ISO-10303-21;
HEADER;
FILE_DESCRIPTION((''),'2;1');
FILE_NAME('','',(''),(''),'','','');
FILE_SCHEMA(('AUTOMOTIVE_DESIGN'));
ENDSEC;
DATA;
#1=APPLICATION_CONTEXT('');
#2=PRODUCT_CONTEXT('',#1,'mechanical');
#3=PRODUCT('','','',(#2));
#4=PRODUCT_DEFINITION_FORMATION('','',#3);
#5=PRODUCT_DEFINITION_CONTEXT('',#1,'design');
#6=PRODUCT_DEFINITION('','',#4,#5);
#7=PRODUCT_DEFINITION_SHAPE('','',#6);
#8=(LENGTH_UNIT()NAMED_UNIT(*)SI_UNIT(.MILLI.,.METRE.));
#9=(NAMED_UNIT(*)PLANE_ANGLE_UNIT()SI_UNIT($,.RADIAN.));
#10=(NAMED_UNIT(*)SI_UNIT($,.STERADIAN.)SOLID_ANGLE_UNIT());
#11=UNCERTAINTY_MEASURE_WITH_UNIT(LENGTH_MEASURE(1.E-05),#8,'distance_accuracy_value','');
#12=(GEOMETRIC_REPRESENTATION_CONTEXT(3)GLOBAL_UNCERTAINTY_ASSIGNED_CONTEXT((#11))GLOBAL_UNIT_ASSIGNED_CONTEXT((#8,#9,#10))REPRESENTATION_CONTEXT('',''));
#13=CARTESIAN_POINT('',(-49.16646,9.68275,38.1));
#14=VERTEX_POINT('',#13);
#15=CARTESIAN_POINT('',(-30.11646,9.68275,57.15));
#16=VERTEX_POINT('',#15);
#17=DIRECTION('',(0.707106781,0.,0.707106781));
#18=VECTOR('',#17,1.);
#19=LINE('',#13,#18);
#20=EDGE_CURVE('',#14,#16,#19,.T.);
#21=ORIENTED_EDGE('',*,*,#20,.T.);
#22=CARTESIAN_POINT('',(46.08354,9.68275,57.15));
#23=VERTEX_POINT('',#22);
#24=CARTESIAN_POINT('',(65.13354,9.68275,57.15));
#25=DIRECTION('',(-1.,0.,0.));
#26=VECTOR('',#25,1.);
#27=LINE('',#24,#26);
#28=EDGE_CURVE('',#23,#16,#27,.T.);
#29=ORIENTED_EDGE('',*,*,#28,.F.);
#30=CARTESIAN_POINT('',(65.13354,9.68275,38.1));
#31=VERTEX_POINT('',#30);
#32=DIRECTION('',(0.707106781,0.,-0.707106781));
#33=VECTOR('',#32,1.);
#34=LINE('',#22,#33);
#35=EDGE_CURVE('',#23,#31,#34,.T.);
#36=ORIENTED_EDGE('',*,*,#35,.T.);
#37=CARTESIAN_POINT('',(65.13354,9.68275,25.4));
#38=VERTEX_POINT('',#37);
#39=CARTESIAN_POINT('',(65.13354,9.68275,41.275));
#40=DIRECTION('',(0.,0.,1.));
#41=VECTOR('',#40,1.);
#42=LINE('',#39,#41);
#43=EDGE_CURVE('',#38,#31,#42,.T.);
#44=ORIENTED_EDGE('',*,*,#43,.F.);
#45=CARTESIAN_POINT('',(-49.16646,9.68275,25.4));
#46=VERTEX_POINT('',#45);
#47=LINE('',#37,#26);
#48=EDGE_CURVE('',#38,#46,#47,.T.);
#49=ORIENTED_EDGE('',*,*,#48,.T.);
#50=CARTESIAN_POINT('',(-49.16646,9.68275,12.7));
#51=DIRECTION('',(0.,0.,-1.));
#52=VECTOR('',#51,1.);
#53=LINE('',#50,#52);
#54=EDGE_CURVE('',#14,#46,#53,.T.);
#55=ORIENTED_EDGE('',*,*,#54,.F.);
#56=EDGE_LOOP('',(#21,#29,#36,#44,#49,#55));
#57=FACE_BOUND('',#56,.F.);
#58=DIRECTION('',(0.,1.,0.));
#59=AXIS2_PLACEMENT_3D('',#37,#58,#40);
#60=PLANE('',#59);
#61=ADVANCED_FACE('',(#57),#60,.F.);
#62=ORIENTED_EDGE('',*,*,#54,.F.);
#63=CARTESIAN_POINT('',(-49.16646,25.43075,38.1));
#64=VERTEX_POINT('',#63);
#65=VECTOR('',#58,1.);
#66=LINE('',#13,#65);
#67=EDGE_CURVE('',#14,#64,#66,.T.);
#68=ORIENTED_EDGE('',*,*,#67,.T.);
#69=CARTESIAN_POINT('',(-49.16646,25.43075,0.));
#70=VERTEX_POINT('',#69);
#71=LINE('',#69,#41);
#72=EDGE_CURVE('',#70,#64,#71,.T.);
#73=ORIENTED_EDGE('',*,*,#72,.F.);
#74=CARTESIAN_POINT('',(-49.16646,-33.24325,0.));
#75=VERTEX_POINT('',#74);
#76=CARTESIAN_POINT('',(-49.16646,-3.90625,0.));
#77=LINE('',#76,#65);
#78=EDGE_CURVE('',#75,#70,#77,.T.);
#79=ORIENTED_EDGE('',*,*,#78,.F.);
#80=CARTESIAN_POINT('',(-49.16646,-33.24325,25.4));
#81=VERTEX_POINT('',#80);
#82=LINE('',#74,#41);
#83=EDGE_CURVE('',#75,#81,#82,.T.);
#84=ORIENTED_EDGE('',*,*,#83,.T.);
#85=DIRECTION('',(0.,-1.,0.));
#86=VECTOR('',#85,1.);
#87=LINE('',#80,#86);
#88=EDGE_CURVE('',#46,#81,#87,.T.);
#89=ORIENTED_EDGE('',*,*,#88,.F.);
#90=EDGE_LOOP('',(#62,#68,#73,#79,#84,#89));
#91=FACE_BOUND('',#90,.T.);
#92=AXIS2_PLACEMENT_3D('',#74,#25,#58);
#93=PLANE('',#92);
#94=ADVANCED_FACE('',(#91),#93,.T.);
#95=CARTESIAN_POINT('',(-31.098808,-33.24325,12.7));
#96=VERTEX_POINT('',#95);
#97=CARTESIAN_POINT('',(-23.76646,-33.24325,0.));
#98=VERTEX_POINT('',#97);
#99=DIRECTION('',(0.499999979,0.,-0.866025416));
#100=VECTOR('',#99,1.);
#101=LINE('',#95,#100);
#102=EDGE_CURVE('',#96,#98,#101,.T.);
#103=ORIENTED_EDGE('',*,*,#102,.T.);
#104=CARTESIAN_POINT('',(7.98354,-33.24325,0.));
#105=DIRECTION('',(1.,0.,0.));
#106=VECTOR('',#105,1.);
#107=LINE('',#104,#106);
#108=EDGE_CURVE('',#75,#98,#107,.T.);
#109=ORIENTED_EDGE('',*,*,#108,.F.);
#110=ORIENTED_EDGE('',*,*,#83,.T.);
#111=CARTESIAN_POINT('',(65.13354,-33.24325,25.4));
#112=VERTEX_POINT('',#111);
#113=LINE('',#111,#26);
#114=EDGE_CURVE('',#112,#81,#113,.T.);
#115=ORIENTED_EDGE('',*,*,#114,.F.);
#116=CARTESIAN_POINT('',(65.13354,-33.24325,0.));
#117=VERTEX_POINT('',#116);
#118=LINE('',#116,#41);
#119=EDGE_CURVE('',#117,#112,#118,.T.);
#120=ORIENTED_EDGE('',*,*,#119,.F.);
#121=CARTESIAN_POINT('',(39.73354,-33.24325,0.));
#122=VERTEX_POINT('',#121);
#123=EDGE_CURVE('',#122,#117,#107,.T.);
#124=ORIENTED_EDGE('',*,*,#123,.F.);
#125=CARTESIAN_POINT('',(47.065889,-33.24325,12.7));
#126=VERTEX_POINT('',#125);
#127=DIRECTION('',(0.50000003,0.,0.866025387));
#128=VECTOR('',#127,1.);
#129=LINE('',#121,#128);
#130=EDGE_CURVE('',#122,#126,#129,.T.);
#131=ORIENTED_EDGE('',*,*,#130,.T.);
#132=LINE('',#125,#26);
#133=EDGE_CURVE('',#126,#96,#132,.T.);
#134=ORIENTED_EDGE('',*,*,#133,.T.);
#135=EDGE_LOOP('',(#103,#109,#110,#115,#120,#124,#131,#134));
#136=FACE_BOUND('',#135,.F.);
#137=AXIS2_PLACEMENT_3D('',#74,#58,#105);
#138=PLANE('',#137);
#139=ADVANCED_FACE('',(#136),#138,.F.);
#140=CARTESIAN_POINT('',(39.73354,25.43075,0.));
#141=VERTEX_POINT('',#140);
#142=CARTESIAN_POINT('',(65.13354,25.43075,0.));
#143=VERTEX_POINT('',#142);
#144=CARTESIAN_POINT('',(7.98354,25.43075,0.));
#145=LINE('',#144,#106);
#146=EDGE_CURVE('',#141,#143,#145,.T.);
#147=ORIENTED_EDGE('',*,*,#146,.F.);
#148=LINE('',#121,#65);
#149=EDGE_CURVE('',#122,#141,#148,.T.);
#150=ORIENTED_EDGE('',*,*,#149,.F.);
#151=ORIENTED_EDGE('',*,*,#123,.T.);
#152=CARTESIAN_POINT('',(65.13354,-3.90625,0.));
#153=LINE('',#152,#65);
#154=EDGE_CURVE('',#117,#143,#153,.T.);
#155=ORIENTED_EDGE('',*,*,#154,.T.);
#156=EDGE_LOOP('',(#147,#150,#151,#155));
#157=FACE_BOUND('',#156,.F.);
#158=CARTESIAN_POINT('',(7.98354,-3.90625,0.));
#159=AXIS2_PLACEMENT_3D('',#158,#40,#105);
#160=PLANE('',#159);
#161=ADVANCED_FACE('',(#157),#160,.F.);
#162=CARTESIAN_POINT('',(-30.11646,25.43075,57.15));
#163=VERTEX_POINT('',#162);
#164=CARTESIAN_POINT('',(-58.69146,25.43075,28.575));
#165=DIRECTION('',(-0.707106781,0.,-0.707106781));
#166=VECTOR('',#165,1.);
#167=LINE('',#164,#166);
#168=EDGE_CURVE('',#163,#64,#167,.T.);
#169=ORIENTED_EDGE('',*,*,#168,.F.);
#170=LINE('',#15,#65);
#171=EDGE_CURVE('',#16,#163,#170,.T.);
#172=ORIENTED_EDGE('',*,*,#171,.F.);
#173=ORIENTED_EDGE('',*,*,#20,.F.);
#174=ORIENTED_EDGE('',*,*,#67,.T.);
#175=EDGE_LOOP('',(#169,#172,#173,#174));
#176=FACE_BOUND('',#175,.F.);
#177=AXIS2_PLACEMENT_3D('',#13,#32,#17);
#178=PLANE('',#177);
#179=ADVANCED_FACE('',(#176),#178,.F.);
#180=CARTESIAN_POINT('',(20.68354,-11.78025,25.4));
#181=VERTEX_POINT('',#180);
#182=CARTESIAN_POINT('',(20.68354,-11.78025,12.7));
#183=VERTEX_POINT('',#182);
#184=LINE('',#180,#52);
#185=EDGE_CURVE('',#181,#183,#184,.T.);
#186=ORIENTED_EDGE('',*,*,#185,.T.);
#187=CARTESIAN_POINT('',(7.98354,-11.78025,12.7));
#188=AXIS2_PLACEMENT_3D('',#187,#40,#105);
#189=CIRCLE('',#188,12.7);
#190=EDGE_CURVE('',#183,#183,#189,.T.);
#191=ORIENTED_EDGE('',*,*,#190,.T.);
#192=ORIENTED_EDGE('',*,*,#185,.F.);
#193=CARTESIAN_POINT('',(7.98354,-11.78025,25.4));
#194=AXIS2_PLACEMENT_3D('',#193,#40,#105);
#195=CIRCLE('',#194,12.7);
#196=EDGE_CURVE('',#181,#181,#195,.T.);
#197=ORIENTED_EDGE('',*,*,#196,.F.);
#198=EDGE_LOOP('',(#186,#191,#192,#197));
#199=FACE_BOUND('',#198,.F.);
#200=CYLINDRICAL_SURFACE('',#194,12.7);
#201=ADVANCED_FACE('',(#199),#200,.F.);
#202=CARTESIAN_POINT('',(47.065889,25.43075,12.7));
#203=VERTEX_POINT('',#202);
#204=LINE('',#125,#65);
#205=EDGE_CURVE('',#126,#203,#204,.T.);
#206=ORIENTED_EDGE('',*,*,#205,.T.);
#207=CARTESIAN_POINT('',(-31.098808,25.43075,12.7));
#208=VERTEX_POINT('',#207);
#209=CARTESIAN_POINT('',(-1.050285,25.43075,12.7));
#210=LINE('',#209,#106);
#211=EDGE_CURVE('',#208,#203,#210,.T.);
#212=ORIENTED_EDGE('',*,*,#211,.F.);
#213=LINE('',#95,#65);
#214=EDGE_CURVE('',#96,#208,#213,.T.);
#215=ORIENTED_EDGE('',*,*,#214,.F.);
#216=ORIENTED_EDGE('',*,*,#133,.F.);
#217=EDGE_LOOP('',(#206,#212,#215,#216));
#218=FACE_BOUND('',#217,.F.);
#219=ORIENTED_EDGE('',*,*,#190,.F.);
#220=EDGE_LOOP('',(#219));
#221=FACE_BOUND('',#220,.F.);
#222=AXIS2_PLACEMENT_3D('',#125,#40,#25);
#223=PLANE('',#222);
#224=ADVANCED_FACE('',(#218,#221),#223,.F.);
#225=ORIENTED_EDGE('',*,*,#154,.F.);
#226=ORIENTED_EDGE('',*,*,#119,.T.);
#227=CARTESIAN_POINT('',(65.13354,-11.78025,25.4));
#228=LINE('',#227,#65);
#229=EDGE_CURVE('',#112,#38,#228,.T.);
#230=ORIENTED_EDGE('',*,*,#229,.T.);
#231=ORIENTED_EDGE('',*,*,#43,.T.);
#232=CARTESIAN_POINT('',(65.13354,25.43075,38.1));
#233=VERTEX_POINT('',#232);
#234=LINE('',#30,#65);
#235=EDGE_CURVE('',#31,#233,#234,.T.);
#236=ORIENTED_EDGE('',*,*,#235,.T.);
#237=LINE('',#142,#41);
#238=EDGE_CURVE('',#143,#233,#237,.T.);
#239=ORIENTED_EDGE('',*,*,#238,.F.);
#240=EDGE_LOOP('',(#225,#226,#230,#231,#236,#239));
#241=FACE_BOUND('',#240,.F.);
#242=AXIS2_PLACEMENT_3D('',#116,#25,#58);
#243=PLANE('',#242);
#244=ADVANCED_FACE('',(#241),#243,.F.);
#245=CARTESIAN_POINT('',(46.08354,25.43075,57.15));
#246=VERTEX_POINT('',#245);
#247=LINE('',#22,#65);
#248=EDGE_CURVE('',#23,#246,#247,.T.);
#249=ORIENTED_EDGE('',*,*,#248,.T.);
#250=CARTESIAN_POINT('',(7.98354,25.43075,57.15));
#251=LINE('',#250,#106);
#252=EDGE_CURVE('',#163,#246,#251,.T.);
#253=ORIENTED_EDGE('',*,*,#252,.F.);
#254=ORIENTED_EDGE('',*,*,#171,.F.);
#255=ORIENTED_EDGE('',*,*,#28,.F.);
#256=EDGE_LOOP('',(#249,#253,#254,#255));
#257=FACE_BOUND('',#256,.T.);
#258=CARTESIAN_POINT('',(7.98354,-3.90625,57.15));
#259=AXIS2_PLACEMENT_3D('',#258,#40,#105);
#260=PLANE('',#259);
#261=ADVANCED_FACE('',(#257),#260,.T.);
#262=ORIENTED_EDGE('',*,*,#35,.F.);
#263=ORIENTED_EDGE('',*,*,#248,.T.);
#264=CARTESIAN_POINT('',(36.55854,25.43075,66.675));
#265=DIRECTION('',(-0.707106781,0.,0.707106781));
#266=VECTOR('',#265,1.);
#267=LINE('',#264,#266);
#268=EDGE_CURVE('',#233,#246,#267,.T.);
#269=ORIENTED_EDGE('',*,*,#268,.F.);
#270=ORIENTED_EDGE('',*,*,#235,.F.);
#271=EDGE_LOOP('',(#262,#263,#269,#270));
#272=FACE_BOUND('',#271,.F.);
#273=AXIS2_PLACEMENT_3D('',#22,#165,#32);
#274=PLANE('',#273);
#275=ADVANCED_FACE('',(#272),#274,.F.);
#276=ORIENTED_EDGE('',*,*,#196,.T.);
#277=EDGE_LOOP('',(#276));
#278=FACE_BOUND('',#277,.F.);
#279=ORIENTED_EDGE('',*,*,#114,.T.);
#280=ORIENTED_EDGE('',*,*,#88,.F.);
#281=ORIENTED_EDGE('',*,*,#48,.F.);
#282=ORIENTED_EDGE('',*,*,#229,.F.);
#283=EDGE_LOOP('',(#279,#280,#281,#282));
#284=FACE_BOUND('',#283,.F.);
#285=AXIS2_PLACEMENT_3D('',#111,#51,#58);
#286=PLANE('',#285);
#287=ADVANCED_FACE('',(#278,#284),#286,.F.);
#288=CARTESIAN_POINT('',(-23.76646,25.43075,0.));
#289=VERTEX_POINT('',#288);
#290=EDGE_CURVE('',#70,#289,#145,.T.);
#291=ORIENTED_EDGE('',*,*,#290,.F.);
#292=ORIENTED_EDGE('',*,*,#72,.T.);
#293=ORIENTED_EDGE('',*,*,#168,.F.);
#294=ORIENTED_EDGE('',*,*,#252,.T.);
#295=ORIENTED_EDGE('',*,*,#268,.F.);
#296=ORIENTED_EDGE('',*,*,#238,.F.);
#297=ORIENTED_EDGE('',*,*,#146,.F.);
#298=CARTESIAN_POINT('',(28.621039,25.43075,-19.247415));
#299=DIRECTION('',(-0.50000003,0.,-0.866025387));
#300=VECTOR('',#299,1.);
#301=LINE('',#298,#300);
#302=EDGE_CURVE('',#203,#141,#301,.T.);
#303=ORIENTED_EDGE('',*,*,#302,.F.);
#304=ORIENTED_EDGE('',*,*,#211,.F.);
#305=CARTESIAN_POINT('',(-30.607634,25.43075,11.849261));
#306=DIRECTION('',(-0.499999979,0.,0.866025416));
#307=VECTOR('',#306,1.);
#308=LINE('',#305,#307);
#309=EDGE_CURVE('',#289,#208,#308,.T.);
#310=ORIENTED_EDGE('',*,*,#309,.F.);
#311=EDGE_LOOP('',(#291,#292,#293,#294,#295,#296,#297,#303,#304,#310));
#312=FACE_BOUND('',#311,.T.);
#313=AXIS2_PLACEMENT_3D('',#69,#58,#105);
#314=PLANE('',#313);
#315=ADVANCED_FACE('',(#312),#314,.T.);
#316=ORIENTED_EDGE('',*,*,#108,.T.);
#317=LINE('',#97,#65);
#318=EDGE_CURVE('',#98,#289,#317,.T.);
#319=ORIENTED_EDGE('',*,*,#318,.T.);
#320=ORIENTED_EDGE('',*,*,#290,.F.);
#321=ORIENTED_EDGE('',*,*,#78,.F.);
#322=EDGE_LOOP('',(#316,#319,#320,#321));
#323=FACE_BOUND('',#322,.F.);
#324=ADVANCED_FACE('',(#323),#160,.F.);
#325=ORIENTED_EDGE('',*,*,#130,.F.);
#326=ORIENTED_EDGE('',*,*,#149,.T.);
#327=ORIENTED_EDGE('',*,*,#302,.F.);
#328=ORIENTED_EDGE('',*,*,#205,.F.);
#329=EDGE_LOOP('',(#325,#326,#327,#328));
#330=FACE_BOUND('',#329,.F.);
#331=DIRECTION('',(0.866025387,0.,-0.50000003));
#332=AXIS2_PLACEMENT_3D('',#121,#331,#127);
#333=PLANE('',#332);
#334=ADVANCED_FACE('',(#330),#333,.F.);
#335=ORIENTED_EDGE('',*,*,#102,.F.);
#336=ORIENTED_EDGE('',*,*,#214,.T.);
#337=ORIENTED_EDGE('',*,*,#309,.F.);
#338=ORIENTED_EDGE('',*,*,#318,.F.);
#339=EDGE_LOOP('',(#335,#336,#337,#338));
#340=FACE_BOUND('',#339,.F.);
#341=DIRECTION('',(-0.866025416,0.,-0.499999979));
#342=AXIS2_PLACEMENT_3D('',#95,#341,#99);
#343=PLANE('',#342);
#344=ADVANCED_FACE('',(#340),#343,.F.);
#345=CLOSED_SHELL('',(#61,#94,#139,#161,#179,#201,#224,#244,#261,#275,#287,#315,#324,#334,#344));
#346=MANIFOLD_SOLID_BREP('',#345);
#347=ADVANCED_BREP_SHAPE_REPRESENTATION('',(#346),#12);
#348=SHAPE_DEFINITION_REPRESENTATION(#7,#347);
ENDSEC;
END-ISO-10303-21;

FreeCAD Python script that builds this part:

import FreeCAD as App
import Part
import Sketcher

V = App.Vector
Q = App.Units.Quantity


def add_polygon(sketch, points):
    """Adds a closed chain of lines whose ends are joined by coincident constraints."""
    first, n = sketch.GeometryCount, len(points)
    for a, b in zip(points, points[1:] + points[:1]):
        sketch.addGeometry(Part.LineSegment(App.Vector(*a, 0), App.Vector(*b, 0)), False)
    for i in range(n):
        sketch.addConstraint(Sketcher.Constraint("Coincident", first + i, 2, first + (i + 1) % n, 1))

doc = App.newDocument("Part")
body = doc.addObject("PartDesign::Body", "Body")

sketch1 = body.newObject("Sketcher::SketchObject", "Sketch")
sketch1.AttachmentSupport = (doc.getObject("XY_Plane"), [""])
sketch1.MapMode = "FlatFace"
add_polygon(sketch1, [(-49, 25), (-49, -33), (65, -33), (65, 25)])
sketch1.addConstraint([
    Sketcher.Constraint("Vertical", 0),
    Sketcher.Constraint("Horizontal", 1),
    Sketcher.Constraint("Vertical", 2),
    Sketcher.Constraint("Horizontal", 3),
    Sketcher.Constraint("DistanceX", 1, 1, 1, 2, Q("4.5 in")),
    Sketcher.Constraint("DistanceY", 0, 2, 0, 1, Q("2.31 in")),
    Sketcher.Constraint("DistanceX", 0, 2, -1, 1, 49.16646),
    Sketcher.Constraint("DistanceY", 0, 2, -1, 1, 33.24325),
])
pad1 = body.newObject("PartDesign::Pad", "Pad")
pad1.Profile = sketch1
pad1.Length = Q("2.25 in")

sketch2 = body.newObject("Sketcher::SketchObject", "Sketch001")
sketch2.AttachmentSupport = (doc.getObject("YZ_Plane"), [""])
sketch2.MapMode = "FlatFace"
sketch2.AttachmentOffset = App.Placement(V(0, 0, 65.13354), App.Rotation())
add_polygon(sketch2, [(-33, 57), (-33, 25), (10, 25), (10, 57)])
sketch2.addConstraint([
    Sketcher.Constraint("Vertical", 0),
    Sketcher.Constraint("Horizontal", 1),
    Sketcher.Constraint("Vertical", 2),
    Sketcher.Constraint("Horizontal", 3),
    Sketcher.Constraint("DistanceY", -1, 1, 0, 2, Q("1 in")),
    Sketcher.Constraint("DistanceX", 1, 1, 1, 2, Q("1.69 in")),
    Sketcher.Constraint("DistanceY", 0, 2, 0, 1, Q("1.25 in")),
    Sketcher.Constraint("DistanceX", 0, 2, -1, 1, 33.24325),
])
pocket1 = body.newObject("PartDesign::Pocket", "Pocket")
pocket1.Profile = sketch2
pocket1.Length = Q("5.64 in")

sketch3 = body.newObject("Sketcher::SketchObject", "Sketch002")
sketch3.AttachmentSupport = (doc.getObject("XZ_Plane"), [""])
sketch3.MapMode = "FlatFace"
sketch3.AttachmentOffset = App.Placement(V(0, 0, -9.68275), App.Rotation())
add_polygon(sketch3, [(65, 38), (65, 57), (46, 57)])
add_polygon(sketch3, [(-49, 38), (-30, 57), (-49, 57)])
sketch3.addConstraint([
    Sketcher.Constraint("Vertical", 0),
    Sketcher.Constraint("Horizontal", 1),
    Sketcher.Constraint("Horizontal", 4),
    Sketcher.Constraint("Vertical", 5),
    Sketcher.Constraint("Perpendicular", 2, 3),
    Sketcher.Constraint("Horizontal", 1, 2, 3, 2),
    Sketcher.Constraint("Horizontal", 2, 2, 5, 2),
    Sketcher.Constraint("Equal", 1, 4),
    Sketcher.Constraint("DistanceX", 3, 2, 1, 2, Q("3 in")),
    Sketcher.Constraint("DistanceX", 1, 2, 1, 1, Q("0.75 in")),
    Sketcher.Constraint("DistanceY", -1, 1, 2, 2, Q("1.5 in")),
    Sketcher.Constraint("DistanceX", -1, 1, 0, 2, 65.13354),
])
pocket2 = body.newObject("PartDesign::Pocket", "Pocket001")
pocket2.Profile = sketch3
pocket2.Length = Q("1 in")

sketch4 = body.newObject("Sketcher::SketchObject", "Sketch003")
sketch4.AttachmentSupport = (doc.getObject("XZ_Plane"), [""])
sketch4.MapMode = "FlatFace"
sketch4.AttachmentOffset = App.Placement(V(0, 0, 33.24325), App.Rotation())
add_polygon(sketch4, [(-31, 13), (-24, 0), (40, 0), (47, 13)])
sketch4.addConstraint([
    Sketcher.Constraint("Horizontal", 1),
    Sketcher.Constraint("Horizontal", 3),
    Sketcher.Constraint("PointOnObject", 0, 2, -1),
    Sketcher.Constraint("Equal", 0, 2),
    Sketcher.Constraint("DistanceX", 1, 1, 1, 2, Q("2.5 in")),
    Sketcher.Constraint("Angle", 0, Q("-60.000001 deg")),
    Sketcher.Constraint("DistanceY", -1, 1, 2, 2, Q("0.5 in")),
    Sketcher.Constraint("DistanceX", 0, 2, -1, 1, 23.76646),
])
pocket3 = body.newObject("PartDesign::Pocket", "Pocket002")
pocket3.Profile = sketch4
pocket3.Length = Q("3.98 in")

sketch5 = body.newObject("Sketcher::SketchObject", "Sketch004")
sketch5.AttachmentSupport = (doc.getObject("XY_Plane"), [""])
sketch5.MapMode = "FlatFace"
sketch5.AttachmentOffset = App.Placement(V(0, 0, 1 * 25.4), App.Rotation())
sketch5.addGeometry(Part.Circle(V(8, -12, 0), V(0, 0, 1), 13), False)
sketch5.addConstraint([
    Sketcher.Constraint("Diameter", 0, Q("1 in")),
    Sketcher.Constraint("DistanceX", -1, 1, 0, 3, 7.98354),
    Sketcher.Constraint("DistanceY", 0, 3, -1, 1, 11.78025),
])
pocket4 = body.newObject("PartDesign::Pocket", "Pocket003")
pocket4.Profile = sketch5
pocket4.Length = Q("1 in")

doc.recompute()
